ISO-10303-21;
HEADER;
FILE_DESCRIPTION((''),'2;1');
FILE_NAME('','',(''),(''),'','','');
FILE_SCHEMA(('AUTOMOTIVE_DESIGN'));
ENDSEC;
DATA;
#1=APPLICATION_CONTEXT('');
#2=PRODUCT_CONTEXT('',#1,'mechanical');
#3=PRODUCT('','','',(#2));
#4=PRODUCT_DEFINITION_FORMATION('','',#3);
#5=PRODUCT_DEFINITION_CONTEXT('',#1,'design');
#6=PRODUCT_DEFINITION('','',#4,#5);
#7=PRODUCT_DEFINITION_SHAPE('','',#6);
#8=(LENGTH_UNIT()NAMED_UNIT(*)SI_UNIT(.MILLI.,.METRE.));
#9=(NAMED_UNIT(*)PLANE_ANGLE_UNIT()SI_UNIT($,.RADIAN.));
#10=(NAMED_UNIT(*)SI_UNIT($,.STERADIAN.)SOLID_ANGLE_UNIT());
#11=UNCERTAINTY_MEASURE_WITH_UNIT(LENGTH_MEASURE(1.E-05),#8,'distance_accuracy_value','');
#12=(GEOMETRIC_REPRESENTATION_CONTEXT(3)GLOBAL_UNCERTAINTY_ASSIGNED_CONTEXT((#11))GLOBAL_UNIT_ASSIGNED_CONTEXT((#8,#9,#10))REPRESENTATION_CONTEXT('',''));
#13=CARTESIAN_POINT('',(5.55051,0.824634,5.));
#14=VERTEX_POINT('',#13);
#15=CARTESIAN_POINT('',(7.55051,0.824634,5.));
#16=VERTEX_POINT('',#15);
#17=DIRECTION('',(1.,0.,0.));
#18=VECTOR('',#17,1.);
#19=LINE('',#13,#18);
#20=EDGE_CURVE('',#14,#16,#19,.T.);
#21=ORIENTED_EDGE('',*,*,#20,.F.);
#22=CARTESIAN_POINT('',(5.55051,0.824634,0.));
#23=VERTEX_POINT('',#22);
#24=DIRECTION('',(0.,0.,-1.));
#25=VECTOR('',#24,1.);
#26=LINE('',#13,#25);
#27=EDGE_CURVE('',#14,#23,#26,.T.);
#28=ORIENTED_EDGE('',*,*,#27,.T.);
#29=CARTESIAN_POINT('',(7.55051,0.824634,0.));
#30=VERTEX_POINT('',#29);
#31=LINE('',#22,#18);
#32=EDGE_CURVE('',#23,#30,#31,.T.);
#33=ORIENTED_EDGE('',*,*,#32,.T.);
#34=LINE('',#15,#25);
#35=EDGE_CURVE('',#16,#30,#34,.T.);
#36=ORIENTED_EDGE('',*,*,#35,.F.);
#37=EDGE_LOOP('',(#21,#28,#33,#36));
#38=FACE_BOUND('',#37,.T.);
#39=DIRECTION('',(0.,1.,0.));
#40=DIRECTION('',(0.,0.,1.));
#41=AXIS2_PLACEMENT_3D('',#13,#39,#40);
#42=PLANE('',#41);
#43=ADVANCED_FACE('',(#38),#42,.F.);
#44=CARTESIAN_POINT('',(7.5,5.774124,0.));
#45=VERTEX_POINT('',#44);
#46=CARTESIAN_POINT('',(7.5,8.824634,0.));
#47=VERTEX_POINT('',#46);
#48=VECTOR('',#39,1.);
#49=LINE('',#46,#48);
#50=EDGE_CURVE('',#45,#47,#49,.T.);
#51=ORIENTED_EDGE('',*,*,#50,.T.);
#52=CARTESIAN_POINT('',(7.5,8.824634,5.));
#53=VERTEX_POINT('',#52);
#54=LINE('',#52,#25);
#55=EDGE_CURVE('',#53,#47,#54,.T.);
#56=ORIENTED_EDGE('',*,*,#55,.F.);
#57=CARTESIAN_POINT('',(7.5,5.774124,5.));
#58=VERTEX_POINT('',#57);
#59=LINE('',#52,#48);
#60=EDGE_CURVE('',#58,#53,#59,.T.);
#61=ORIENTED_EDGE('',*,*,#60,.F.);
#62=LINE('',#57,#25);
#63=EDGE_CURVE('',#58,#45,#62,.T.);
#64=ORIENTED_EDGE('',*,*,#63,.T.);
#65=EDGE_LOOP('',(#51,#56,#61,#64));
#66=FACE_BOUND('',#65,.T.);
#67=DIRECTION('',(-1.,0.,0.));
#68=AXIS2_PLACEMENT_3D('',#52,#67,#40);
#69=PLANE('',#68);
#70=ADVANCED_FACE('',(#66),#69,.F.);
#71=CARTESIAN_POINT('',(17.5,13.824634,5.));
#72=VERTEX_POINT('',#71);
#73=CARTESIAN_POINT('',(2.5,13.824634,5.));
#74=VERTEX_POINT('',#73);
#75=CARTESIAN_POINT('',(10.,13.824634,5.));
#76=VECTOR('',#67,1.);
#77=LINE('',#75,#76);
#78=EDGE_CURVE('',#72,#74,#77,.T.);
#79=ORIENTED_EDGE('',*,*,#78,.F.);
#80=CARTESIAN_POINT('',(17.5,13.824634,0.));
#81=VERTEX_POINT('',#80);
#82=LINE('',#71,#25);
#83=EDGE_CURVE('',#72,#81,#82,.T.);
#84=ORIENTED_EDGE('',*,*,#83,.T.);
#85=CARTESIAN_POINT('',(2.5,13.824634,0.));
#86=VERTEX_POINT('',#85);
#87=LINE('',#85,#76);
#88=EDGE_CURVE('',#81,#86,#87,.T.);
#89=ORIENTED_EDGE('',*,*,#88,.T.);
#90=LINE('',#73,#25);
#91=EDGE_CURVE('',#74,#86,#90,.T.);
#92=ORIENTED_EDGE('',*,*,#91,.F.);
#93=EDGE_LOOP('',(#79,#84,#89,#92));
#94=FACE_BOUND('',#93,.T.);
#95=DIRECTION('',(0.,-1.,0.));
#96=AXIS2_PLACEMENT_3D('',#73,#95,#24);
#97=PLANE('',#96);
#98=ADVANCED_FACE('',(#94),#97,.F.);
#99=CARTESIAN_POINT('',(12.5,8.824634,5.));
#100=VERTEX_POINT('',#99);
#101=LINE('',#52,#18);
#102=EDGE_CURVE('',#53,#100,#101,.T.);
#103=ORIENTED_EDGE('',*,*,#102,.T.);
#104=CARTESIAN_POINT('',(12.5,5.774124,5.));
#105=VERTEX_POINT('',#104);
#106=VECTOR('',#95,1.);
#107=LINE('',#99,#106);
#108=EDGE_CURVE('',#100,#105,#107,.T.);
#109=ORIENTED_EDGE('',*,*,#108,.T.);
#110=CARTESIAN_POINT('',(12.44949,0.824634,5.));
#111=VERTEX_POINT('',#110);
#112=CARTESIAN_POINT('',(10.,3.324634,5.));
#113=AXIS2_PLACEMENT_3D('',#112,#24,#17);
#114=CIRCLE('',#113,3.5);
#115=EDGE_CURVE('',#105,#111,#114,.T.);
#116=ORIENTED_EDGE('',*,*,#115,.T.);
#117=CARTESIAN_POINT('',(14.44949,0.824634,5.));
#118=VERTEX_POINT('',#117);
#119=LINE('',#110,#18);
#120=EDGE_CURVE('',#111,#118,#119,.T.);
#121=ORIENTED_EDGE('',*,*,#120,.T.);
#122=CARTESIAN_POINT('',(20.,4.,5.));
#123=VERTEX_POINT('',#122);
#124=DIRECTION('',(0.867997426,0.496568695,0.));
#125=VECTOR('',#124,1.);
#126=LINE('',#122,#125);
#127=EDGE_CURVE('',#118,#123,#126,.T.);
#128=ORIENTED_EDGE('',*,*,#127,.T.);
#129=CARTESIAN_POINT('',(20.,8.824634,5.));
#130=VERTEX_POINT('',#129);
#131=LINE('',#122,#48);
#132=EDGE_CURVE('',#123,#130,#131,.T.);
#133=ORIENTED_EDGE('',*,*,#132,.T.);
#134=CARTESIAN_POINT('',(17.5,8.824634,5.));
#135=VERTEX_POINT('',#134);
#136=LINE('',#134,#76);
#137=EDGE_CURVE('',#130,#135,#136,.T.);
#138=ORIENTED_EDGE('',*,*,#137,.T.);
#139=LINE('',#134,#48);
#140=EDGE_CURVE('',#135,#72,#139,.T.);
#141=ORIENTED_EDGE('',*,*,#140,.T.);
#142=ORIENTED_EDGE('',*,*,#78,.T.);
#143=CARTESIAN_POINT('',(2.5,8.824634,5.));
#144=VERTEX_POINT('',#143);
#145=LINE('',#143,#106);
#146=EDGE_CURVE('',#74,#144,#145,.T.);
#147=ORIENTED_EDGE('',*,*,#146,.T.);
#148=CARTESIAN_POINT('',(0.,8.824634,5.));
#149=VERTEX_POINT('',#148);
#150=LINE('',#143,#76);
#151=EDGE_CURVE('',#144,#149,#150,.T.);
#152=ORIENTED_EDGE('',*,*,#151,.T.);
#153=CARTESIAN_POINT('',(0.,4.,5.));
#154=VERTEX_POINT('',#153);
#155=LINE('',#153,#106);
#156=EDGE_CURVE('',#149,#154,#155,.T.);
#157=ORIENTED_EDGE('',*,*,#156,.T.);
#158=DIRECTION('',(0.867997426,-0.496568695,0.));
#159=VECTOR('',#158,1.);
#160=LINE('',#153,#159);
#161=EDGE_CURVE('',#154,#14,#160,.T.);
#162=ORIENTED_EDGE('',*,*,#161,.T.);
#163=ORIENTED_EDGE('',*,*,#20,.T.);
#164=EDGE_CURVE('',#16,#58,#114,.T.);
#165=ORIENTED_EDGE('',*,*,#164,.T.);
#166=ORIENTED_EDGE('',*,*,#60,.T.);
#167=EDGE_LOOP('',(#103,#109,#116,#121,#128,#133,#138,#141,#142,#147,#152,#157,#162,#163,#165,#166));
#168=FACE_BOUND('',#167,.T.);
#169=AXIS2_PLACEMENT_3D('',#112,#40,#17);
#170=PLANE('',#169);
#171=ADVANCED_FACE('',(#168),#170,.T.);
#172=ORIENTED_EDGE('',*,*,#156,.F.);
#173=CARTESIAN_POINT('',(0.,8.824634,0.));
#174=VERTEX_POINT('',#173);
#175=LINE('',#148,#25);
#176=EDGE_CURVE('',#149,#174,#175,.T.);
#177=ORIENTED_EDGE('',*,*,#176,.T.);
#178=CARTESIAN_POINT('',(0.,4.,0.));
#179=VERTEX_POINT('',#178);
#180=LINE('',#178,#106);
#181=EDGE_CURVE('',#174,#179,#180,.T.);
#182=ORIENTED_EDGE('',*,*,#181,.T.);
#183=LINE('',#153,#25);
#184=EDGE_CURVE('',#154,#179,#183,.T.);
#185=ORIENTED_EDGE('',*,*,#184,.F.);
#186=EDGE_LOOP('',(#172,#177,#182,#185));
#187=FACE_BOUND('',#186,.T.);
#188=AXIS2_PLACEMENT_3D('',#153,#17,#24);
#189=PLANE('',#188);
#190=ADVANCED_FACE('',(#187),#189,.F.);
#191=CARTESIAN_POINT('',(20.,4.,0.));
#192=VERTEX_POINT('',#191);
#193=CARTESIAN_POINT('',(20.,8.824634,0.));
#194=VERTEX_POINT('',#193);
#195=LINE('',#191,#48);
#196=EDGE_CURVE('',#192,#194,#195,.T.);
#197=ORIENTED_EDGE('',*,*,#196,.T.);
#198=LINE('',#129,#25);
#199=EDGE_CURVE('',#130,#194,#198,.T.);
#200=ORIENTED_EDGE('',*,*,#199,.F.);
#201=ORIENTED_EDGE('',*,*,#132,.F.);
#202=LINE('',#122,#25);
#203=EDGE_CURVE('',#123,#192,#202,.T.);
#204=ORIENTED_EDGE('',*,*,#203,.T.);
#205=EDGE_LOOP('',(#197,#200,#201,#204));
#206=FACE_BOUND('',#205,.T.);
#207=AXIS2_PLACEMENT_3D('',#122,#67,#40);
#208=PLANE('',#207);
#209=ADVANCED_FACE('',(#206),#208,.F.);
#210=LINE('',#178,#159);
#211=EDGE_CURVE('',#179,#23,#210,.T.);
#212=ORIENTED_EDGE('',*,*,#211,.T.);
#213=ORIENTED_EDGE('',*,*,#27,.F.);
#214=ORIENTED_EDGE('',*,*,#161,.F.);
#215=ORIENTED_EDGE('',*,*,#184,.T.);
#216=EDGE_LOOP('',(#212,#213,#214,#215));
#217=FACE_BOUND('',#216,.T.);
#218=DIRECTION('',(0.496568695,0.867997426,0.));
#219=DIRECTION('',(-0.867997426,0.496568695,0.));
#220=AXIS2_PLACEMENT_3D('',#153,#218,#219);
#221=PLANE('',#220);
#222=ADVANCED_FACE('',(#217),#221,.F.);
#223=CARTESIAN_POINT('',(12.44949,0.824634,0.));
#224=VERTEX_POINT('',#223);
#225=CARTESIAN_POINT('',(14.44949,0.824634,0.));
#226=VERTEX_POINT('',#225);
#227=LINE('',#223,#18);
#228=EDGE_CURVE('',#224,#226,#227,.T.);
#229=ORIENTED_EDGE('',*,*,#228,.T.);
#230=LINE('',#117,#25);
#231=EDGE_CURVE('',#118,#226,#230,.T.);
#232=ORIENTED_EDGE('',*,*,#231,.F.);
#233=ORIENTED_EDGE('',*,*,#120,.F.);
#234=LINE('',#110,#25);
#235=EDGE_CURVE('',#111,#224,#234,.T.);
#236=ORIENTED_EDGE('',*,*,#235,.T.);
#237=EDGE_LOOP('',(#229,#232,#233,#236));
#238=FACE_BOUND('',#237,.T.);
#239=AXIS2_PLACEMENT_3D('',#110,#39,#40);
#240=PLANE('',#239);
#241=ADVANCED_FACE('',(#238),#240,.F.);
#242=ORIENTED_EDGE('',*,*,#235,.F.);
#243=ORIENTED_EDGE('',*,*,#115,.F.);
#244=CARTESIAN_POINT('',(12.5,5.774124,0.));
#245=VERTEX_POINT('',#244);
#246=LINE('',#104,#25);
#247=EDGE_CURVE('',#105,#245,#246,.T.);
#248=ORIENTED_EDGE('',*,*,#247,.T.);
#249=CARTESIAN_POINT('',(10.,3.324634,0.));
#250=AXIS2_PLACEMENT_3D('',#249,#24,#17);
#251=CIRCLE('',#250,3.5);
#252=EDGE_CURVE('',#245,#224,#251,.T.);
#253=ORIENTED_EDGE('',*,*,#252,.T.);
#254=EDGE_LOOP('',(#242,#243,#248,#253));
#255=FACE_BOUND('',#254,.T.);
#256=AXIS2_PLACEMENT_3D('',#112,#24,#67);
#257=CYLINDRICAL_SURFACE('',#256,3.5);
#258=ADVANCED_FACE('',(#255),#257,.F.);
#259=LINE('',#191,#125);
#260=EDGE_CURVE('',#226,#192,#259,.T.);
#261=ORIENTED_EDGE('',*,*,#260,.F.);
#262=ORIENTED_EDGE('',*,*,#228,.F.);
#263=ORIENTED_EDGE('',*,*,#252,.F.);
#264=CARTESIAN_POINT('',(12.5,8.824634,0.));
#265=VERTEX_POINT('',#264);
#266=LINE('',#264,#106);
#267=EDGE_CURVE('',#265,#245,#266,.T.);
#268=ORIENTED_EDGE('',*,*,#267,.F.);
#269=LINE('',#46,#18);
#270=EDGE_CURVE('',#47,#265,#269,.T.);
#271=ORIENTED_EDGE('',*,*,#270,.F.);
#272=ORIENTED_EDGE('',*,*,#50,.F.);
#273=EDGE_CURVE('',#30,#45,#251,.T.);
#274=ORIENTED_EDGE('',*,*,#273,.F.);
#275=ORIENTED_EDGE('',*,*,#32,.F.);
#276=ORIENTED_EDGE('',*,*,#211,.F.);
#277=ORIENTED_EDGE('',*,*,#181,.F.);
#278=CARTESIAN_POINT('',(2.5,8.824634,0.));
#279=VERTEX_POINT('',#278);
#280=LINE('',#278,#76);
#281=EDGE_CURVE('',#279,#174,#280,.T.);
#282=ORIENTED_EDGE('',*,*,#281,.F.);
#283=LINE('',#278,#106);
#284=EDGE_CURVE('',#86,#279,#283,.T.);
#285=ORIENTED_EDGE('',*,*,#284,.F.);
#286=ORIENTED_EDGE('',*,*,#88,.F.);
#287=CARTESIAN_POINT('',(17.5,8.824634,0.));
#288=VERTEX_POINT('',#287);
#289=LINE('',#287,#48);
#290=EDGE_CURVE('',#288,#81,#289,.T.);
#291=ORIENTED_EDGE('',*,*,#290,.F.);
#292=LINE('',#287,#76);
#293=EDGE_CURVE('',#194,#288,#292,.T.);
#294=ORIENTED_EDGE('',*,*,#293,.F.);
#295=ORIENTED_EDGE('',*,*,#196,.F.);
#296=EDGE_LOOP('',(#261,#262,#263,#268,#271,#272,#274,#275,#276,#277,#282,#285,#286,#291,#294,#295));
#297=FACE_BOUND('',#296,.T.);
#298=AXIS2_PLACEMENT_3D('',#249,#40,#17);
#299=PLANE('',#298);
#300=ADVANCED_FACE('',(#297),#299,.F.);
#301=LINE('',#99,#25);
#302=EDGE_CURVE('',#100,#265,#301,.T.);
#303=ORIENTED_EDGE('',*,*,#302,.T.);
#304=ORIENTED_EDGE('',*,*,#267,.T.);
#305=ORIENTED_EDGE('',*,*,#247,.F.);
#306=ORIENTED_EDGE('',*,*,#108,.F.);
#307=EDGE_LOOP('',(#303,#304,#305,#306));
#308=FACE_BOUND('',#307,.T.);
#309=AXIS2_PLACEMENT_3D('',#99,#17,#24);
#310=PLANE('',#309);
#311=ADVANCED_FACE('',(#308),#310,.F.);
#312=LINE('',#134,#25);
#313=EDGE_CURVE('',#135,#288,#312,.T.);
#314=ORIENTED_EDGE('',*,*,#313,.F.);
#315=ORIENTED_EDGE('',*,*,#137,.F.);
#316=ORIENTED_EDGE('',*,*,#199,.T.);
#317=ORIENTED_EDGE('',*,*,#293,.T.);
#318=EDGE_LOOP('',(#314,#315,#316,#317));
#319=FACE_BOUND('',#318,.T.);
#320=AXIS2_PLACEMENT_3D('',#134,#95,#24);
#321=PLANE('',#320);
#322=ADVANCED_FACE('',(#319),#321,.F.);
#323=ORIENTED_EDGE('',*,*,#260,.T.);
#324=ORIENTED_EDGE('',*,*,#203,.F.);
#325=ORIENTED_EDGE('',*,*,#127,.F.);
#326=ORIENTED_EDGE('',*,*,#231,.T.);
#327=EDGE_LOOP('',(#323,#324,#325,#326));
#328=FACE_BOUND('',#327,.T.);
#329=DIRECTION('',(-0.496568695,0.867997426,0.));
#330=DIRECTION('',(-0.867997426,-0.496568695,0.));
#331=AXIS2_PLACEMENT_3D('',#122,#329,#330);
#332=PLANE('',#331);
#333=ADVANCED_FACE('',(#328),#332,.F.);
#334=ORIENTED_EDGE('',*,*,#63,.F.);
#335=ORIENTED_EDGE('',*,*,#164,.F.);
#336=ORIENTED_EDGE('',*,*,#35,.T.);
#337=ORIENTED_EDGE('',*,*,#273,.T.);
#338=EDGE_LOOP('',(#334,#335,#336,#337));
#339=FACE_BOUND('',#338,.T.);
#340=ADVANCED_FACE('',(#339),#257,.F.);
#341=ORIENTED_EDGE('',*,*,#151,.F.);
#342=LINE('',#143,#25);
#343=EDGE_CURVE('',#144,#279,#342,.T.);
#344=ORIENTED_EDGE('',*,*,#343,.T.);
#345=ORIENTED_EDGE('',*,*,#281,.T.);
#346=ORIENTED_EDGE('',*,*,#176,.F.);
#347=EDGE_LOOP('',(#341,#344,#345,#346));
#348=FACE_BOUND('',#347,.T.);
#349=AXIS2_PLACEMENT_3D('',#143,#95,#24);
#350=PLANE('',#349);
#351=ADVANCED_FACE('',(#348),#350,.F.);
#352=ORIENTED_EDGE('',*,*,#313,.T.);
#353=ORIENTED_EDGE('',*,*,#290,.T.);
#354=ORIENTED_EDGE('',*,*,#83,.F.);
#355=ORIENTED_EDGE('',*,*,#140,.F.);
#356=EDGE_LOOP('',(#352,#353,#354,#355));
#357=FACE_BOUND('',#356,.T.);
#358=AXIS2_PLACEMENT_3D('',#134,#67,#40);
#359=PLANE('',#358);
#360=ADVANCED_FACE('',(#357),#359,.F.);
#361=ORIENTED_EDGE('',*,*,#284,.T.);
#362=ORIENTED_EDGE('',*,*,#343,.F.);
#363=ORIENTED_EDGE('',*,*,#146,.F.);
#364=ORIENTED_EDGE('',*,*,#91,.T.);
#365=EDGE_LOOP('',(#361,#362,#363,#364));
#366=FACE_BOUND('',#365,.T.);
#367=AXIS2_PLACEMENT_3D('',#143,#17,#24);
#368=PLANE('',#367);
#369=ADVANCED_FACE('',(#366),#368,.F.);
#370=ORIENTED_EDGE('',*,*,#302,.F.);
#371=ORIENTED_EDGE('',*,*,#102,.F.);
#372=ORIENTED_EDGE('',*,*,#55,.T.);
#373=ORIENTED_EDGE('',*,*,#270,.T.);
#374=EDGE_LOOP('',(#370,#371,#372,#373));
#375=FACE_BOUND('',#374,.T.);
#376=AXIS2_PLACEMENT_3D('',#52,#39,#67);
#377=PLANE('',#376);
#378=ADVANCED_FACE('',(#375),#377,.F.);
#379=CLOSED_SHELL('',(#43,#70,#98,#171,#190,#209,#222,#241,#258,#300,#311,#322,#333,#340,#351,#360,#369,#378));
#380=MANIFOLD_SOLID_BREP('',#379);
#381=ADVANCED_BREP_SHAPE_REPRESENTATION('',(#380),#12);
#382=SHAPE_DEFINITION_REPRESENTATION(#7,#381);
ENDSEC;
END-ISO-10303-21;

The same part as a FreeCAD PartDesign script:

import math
import FreeCAD as App
import Part
import Sketcher

doc = App.newDocument("Part")
body = doc.addObject("PartDesign::Body", "Body")

# Sketch on XY plane
sketch1 = body.newObject("Sketcher::SketchObject", "Sketch")
sketch1.AttachmentSupport = (doc.getObject("XY_Plane"), [""])
sketch1.MapMode = "FlatFace"
sketch1.addGeometry([
    Part.LineSegment(App.Vector(5.6, 0.8, 0), App.Vector(7.6, 0.8, 0)),  # 0
    Part.ArcOfCircle(Part.Circle(App.Vector(10, 3.3, 0), App.Vector(0, 0, 1), 3.5), math.radians(136), math.radians(226)),  # 1
    Part.LineSegment(App.Vector(7.5, 5.8, 0), App.Vector(7.5, 8.8, 0)),  # 2
    Part.LineSegment(App.Vector(7.5, 8.8, 0), App.Vector(12.5, 8.8, 0)),  # 3
    Part.LineSegment(App.Vector(12.5, 8.8, 0), App.Vector(12.5, 5.8, 0)),  # 4
    Part.ArcOfCircle(Part.Circle(App.Vector(10, 3.3, 0), App.Vector(0, 0, 1), 3.5), math.radians(-46), math.radians(44)),  # 5
    Part.LineSegment(App.Vector(12.4, 0.8, 0), App.Vector(14.4, 0.8, 0)),  # 6
    Part.LineSegment(App.Vector(14.4, 0.8, 0), App.Vector(20, 4, 0)),  # 7
    Part.LineSegment(App.Vector(20, 4, 0), App.Vector(20, 8.8, 0)),  # 8
    Part.LineSegment(App.Vector(20, 8.8, 0), App.Vector(17.5, 8.8, 0)),  # 9
    Part.LineSegment(App.Vector(17.5, 8.8, 0), App.Vector(17.5, 13.8, 0)),  # 10
    Part.LineSegment(App.Vector(17.5, 13.8, 0), App.Vector(2.5, 13.8, 0)),  # 11
    Part.LineSegment(App.Vector(2.5, 13.8, 0), App.Vector(2.5, 8.8, 0)),  # 12
    Part.LineSegment(App.Vector(2.5, 8.8, 0), App.Vector(0, 8.8, 0)),  # 13
    Part.LineSegment(App.Vector(0, 8.8, 0), App.Vector(0, 4, 0)),  # 14
    Part.LineSegment(App.Vector(0, 4, 0), App.Vector(5.6, 0.8, 0)),  # 15
], False)
sketch1.addConstraint([
    Sketcher.Constraint("Coincident", 0, 2, 1, 2),
    Sketcher.Constraint("Coincident", 1, 1, 2, 1),
    Sketcher.Constraint("Coincident", 2, 2, 3, 1),
    Sketcher.Constraint("Coincident", 3, 2, 4, 1),
    Sketcher.Constraint("Coincident", 4, 2, 5, 2),
    Sketcher.Constraint("Coincident", 5, 1, 6, 1),
    Sketcher.Constraint("Coincident", 6, 2, 7, 1),
    Sketcher.Constraint("Coincident", 7, 2, 8, 1),
    Sketcher.Constraint("Coincident", 8, 2, 9, 1),
    Sketcher.Constraint("Coincident", 9, 2, 10, 1),
    Sketcher.Constraint("Coincident", 10, 2, 11, 1),
    Sketcher.Constraint("Coincident", 11, 2, 12, 1),
    Sketcher.Constraint("Coincident", 12, 2, 13, 1),
    Sketcher.Constraint("Coincident", 13, 2, 14, 1),
    Sketcher.Constraint("Coincident", 14, 2, 15, 1),
    Sketcher.Constraint("Coincident", 15, 2, 0, 1),
    Sketcher.Constraint("Horizontal", 0),
    Sketcher.Constraint("Vertical", 2),
    Sketcher.Constraint("Horizontal", 3),
    Sketcher.Constraint("Vertical", 4),
    Sketcher.Constraint("Horizontal", 6),
    Sketcher.Constraint("Vertical", 8),
    Sketcher.Constraint("Horizontal", 9),
    Sketcher.Constraint("Vertical", 10),
    Sketcher.Constraint("Horizontal", 11),
    Sketcher.Constraint("Vertical", 12),
    Sketcher.Constraint("Horizontal", 13),
    Sketcher.Constraint("Vertical", 14),
    Sketcher.Constraint("Coincident", 5, 3, 1, 3),
    Sketcher.Constraint("Equal", 1, 5),
    Sketcher.Constraint("PointOnObject", 13, 2, -2),
    Sketcher.Constraint("Horizontal", 1, 1, 4, 2),
    Sketcher.Constraint("Horizontal", 0, 2, 5, 1),
    Sketcher.Constraint("Horizontal", 3, 2, 8, 2),
    Sketcher.Constraint("Horizontal", 9, 2, 12, 2),
    Sketcher.Constraint("Horizontal", 7, 2, 14, 2),
    Sketcher.Constraint("Equal", 0, 6),
    Sketcher.Constraint("Equal", 9, 13),
    Sketcher.Constraint("Equal", 3, 10),
    Sketcher.Constraint("Equal", 7, 15),
    Sketcher.Constraint("Radius", 1, 3.5),
    Sketcher.Constraint("DistanceX", 0, 1, 0, 2, 2.0),
    Sketcher.Constraint("DistanceX", 3, 1, 3, 2, 5.0),
    Sketcher.Constraint("DistanceX", 11, 2, 11, 1, 15.0),
    Sketcher.Constraint("DistanceX", 9, 2, 9, 1, 2.5),
    Sketcher.Constraint("DistanceY", -1, 1, 7, 2, 4.0),
    Sketcher.Constraint("DistanceY", 0, 2, 2, 2, 8.0),
    Sketcher.Constraint("DistanceY", 0, 2, 1, 3, 2.5),
    Sketcher.Constraint("DistanceY", 8, 1, 8, 2, 4.824634),
])
pad1 = body.newObject("PartDesign::Pad", "Pad")
pad1.Profile = sketch1
pad1.Length = 5

doc.recompute()
